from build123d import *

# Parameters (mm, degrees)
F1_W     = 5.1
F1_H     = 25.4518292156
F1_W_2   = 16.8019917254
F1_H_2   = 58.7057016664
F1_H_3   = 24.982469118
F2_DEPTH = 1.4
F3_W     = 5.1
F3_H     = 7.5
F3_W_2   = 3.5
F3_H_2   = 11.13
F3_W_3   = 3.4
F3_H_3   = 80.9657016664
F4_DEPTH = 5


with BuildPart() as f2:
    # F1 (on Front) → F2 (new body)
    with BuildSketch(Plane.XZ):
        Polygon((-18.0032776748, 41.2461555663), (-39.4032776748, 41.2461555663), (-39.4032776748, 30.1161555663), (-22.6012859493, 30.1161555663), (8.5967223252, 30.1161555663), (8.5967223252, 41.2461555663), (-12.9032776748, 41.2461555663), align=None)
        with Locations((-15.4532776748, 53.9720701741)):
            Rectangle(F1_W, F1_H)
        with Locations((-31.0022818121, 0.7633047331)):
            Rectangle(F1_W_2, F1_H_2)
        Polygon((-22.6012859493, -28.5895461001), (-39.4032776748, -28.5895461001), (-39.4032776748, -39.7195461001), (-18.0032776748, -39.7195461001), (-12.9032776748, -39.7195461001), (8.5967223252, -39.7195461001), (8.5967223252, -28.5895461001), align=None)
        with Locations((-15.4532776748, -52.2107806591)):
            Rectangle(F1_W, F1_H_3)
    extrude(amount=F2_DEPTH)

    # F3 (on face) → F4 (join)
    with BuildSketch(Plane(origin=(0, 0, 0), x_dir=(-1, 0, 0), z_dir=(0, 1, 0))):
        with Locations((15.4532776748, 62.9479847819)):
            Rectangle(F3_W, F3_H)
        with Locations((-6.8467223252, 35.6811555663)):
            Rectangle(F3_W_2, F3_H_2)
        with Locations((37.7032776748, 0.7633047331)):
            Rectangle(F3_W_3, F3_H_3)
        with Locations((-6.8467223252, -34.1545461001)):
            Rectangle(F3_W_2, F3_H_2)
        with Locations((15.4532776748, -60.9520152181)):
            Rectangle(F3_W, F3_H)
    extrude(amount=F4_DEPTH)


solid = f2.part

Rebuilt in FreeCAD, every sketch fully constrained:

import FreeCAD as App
import Part
import Sketcher
from FreeCAD import Vector


def add_polygon(sketch, points):
    """Adds a closed chain of lines whose ends are joined by coincident constraints."""
    first, n = sketch.GeometryCount, len(points)
    for a, b in zip(points, points[1:] + points[:1]):
        sketch.addGeometry(Part.LineSegment(App.Vector(*a, 0), App.Vector(*b, 0)), False)
    for i in range(n):
        sketch.addConstraint(Sketcher.Constraint("Coincident", first + i, 2, first + (i + 1) % n, 1))

doc = App.newDocument("Part")
body = doc.addObject("PartDesign::Body", "Body")

sketch1 = body.newObject("Sketcher::SketchObject", "Sketch")
sketch1.AttachmentSupport = (doc.getObject("XZ_Plane"), [""])
sketch1.MapMode = "FlatFace"
add_polygon(sketch1, [(-39, 41), (-39, -40), (-18, -40), (-18, -65), (-13, -65), (-13, -40), (9, -40), (9, -29), (-23, -29), (-23, 30), (9, 30), (9, 41), (-13, 41), (-13, 67), (-18, 67), (-18, 41)])
sketch1.addConstraint([
    Sketcher.Constraint("Vertical", 0),
    Sketcher.Constraint("Horizontal", 1),
    Sketcher.Constraint("Vertical", 2),
    Sketcher.Constraint("Horizontal", 3),
    Sketcher.Constraint("Vertical", 4),
    Sketcher.Constraint("Horizontal", 5),
    Sketcher.Constraint("Vertical", 6),
    Sketcher.Constraint("Horizontal", 7),
    Sketcher.Constraint("Vertical", 8),
    Sketcher.Constraint("Horizontal", 9),
    Sketcher.Constraint("Vertical", 10),
    Sketcher.Constraint("Horizontal", 11),
    Sketcher.Constraint("Vertical", 12),
    Sketcher.Constraint("Horizontal", 13),
    Sketcher.Constraint("Vertical", 14),
    Sketcher.Constraint("Horizontal", 15),
    Sketcher.Constraint("Horizontal", 1, 2, 4, 2),
    Sketcher.Constraint("Horizontal", 11, 2, 14, 2),
    Sketcher.Constraint("Vertical", 6, 2, 9, 2),
    Sketcher.Constraint("Vertical", 4, 2, 11, 2),
    Sketcher.Constraint("Vertical", 2, 2, 13, 2),
    Sketcher.Constraint("Equal", 6, 10),
    Sketcher.Constraint("DistanceX", 1, 1, 1, 2, 21.4),
    Sketcher.Constraint("DistanceX", 3, 1, 3, 2, 5.1),
    Sketcher.Constraint("DistanceX", 5, 1, 5, 2, 21.5),
    Sketcher.Constraint("DistanceY", 6, 1, 6, 2, 11.13),
    Sketcher.Constraint("DistanceY", 0, 2, 0, 1, 80.965702),
    Sketcher.Constraint("DistanceX", 7, 2, 7, 1, 31.198008),
    Sketcher.Constraint("DistanceY", 2, 2, 2, 1, 24.982469),
    Sketcher.Constraint("DistanceY", 12, 1, 12, 2, 25.451829),
    Sketcher.Constraint("DistanceX", 0, 2, -1, 1, 39.403278),
    Sketcher.Constraint("DistanceY", 0, 2, -1, 1, 39.719546),
])
pad1 = body.newObject("PartDesign::Pad", "Pad")
pad1.Profile = sketch1
pad1.Length = 1.4

sketch2 = body.newObject("Sketcher::SketchObject", "Sketch001")
sketch2.AttachmentSupport = (doc.getObject("XZ_Plane"), [""])
sketch2.MapMode = "FlatFace"
add_polygon(sketch2, [(-12.9, 66.7), (-12.9, 59.2), (-18, 59.2), (-18, 66.7)])
add_polygon(sketch2, [(8.6, 41.2), (8.6, 30.1), (5.1, 30.1), (5.1, 41.2)])
add_polygon(sketch2, [(-36, 41.2), (-36, -39.7), (-39.4, -39.7), (-39.4, 41.2)])
add_polygon(sketch2, [(8.6, -28.6), (8.6, -39.7), (5.1, -39.7), (5.1, -28.6)])
add_polygon(sketch2, [(-12.9, -57.2), (-12.9, -64.7), (-18, -64.7), (-18, -57.2)])
sketch2.addConstraint([
    Sketcher.Constraint("Vertical", 0),
    Sketcher.Constraint("Horizontal", 1),
    Sketcher.Constraint("Vertical", 2),
    Sketcher.Constraint("Horizontal", 3),
    Sketcher.Constraint("Vertical", 4),
    Sketcher.Constraint("Horizontal", 5),
    Sketcher.Constraint("Vertical", 6),
    Sketcher.Constraint("Horizontal", 7),
    Sketcher.Constraint("Vertical", 8),
    Sketcher.Constraint("Horizontal", 9),
    Sketcher.Constraint("Vertical", 10),
    Sketcher.Constraint("Horizontal", 11),
    Sketcher.Constraint("Vertical", 12),
    Sketcher.Constraint("Horizontal", 13),
    Sketcher.Constraint("Vertical", 14),
    Sketcher.Constraint("Horizontal", 15),
    Sketcher.Constraint("Vertical", 16),
    Sketcher.Constraint("Horizontal", 17),
    Sketcher.Constraint("Vertical", 18),
    Sketcher.Constraint("Horizontal", 19),
    Sketcher.Constraint("Horizontal", 7, 2, 10, 2),
    Sketcher.Constraint("Horizontal", 9, 2, 12, 2),
    Sketcher.Constraint("Vertical", 7, 2, 12, 2),
    Sketcher.Constraint("Vertical", 6, 2, 13, 2),
    Sketcher.Constraint("Vertical", 3, 2, 16, 2),
    Sketcher.Constraint("Vertical", 2, 2, 17, 2),
    Sketcher.Constraint("Equal", 6, 12),
    Sketcher.Constraint("Equal", 2, 16),
    Sketcher.Constraint("DistanceX", 1, 2, 1, 1, 5.1),
    Sketcher.Constraint("DistanceX", 5, 2, 5, 1, 3.5),
    Sketcher.Constraint("DistanceX", 9, 2, 9, 1, 3.4),
    Sketcher.Constraint("DistanceY", 0, 2, 0, 1, 7.5),
    Sketcher.Constraint("DistanceX", 0, 2, 5, 2, 18.0),
    Sketcher.Constraint("DistanceX", 8, 2, 1, 2, 18.0),
    Sketcher.Constraint("DistanceY", 4, 2, 4, 1, 11.13),
    Sketcher.Constraint("DistanceY", 8, 2, 8, 1, 80.965702),
    Sketcher.Constraint("DistanceY", 4, 2, 0, 2, 29.081829),
    Sketcher.Constraint("DistanceY", 16, 2, 13, 2, 24.982469),
    Sketcher.Constraint("DistanceX", 0, 2, -1, 1, 12.903278),
    Sketcher.Constraint("DistanceY", -1, 1, 0, 2, 59.197985),
])
pad2 = body.newObject("PartDesign::Pad", "Pad001")
pad2.Profile = sketch2
pad2.Length = 5
pad2.Reversed = True

doc.recompute()
